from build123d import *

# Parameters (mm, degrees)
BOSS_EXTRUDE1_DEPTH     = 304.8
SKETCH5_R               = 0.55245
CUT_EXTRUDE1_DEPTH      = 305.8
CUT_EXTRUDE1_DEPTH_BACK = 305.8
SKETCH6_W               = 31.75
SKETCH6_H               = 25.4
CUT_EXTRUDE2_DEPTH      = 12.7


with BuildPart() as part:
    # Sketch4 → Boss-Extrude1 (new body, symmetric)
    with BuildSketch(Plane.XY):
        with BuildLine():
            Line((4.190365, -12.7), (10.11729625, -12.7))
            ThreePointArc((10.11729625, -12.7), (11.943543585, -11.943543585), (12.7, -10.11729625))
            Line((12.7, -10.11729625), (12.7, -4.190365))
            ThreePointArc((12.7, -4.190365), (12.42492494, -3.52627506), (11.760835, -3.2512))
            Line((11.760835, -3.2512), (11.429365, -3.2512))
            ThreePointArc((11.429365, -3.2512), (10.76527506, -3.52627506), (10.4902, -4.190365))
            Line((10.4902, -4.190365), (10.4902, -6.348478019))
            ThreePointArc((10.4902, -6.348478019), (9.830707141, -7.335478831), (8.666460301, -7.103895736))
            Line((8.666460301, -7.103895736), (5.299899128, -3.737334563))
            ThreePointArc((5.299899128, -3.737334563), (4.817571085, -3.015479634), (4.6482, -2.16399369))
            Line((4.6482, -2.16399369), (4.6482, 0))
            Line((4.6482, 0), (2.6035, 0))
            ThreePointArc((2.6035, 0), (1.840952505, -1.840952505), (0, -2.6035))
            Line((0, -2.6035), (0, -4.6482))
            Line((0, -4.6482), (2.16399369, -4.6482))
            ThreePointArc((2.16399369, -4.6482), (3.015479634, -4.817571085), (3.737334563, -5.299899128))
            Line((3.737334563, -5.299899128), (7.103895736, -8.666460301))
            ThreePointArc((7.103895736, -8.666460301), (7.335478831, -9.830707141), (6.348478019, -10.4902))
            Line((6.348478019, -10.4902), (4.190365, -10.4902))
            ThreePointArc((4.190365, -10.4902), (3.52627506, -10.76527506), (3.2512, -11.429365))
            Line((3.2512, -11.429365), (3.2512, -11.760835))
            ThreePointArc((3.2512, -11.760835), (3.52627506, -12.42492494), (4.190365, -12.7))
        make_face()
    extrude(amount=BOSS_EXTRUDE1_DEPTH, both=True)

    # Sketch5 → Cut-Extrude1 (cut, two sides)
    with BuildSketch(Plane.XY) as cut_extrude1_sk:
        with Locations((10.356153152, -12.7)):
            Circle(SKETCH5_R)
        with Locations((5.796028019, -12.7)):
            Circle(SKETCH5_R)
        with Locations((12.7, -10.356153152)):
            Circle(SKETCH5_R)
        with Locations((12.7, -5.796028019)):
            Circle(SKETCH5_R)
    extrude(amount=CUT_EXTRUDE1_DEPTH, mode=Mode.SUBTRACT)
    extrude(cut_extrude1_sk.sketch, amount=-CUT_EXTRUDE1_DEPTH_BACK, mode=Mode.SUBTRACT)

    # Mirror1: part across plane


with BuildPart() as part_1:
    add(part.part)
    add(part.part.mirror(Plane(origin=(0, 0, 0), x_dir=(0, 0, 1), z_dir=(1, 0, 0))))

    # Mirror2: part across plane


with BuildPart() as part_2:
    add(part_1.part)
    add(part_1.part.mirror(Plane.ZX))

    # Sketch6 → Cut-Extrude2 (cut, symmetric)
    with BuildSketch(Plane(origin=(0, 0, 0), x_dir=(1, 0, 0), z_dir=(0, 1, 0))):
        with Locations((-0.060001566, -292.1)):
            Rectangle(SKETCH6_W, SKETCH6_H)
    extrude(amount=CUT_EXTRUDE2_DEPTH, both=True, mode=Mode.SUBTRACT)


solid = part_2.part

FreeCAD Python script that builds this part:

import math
import FreeCAD as App
import Part
import Sketcher
Q = App.Units.Quantity


def add_polygon(sketch, points):
    """Adds a closed chain of lines whose ends are joined by coincident constraints."""
    first, n = sketch.GeometryCount, len(points)
    for a, b in zip(points, points[1:] + points[:1]):
        sketch.addGeometry(Part.LineSegment(App.Vector(*a, 0), App.Vector(*b, 0)), False)
    for i in range(n):
        sketch.addConstraint(Sketcher.Constraint("Coincident", first + i, 2, first + (i + 1) % n, 1))

doc = App.newDocument("Part")
body = doc.addObject("PartDesign::Body", "Body")

# Sketch on XY plane
sketch1 = body.newObject("Sketcher::SketchObject", "Sketch")
sketch1.AttachmentSupport = (doc.getObject("XY_Plane"), [""])
sketch1.MapMode = "FlatFace"
sketch1.addGeometry(Part.LineSegment(App.Vector(4.19, -12.7, 0), App.Vector(10.12, -12.7, 0)), False)
sketch1.addGeometry(Part.ArcOfCircle(Part.Circle(App.Vector(10.12, -10.12, 0), App.Vector(0, 0, 1), 2.58), math.radians(-90), math.radians(0)), False)
sketch1.addGeometry(Part.LineSegment(App.Vector(12.7, -10.12, 0), App.Vector(12.7, -4.19, 0)), False)
sketch1.addGeometry(Part.ArcOfCircle(Part.Circle(App.Vector(11.76, -4.19, 0), App.Vector(0, 0, 1), 0.94), math.radians(0), math.radians(90)), False)
sketch1.addGeometry(Part.LineSegment(App.Vector(11.76, -3.25, 0), App.Vector(11.43, -3.25, 0)), False)
sketch1.addGeometry(Part.ArcOfCircle(Part.Circle(App.Vector(11.43, -4.19, 0), App.Vector(0, 0, 1), 0.94), math.radians(90), math.radians(180)), False)
sketch1.addGeometry(Part.LineSegment(App.Vector(10.49, -4.19, 0), App.Vector(10.49, -6.35, 0)), False)
sketch1.addGeometry(Part.ArcOfCircle(Part.Circle(App.Vector(9.42, -6.35, 0), App.Vector(0, 0, 1), 1.07), math.radians(-135), math.radians(0)), False)
sketch1.addGeometry(Part.LineSegment(App.Vector(8.67, -7.1, 0), App.Vector(5.3, -3.74, 0)), False)
sketch1.addGeometry(Part.ArcOfCircle(Part.Circle(App.Vector(6.87, -2.16, 0), App.Vector(0, 0, 1), 2.23), math.radians(-180), math.radians(-135)), False)
sketch1.addGeometry(Part.LineSegment(App.Vector(4.65, -2.16, 0), App.Vector(4.65, 0, 0)), False)
sketch1.addGeometry(Part.LineSegment(App.Vector(4.65, 0, 0), App.Vector(2.6, 0, 0)), False)
sketch1.addGeometry(Part.ArcOfCircle(Part.Circle(App.Vector(0, 0, 0), App.Vector(0, 0, 1), 2.6), math.radians(-90), math.radians(0)), False)
sketch1.addGeometry(Part.LineSegment(App.Vector(0, -2.6, 0), App.Vector(0, -4.65, 0)), False)
sketch1.addGeometry(Part.LineSegment(App.Vector(0, -4.65, 0), App.Vector(2.16, -4.65, 0)), False)
sketch1.addGeometry(Part.ArcOfCircle(Part.Circle(App.Vector(2.16, -6.87, 0), App.Vector(0, 0, 1), 2.23), math.radians(45), math.radians(90)), False)
sketch1.addGeometry(Part.LineSegment(App.Vector(3.74, -5.3, 0), App.Vector(7.1, -8.67, 0)), False)
sketch1.addGeometry(Part.ArcOfCircle(Part.Circle(App.Vector(6.35, -9.42, 0), App.Vector(0, 0, 1), 1.07), math.radians(-90), math.radians(45)), False)
sketch1.addGeometry(Part.LineSegment(App.Vector(6.35, -10.49, 0), App.Vector(4.19, -10.49, 0)), False)
sketch1.addGeometry(Part.ArcOfCircle(Part.Circle(App.Vector(4.19, -11.43, 0), App.Vector(0, 0, 1), 0.94), math.radians(90), math.radians(180)), False)
sketch1.addGeometry(Part.LineSegment(App.Vector(3.25, -11.43, 0), App.Vector(3.25, -11.76, 0)), False)
sketch1.addGeometry(Part.ArcOfCircle(Part.Circle(App.Vector(4.19, -11.76, 0), App.Vector(0, 0, 1), 0.94), math.radians(-180), math.radians(-90)), False)
sketch1.addConstraint(Sketcher.Constraint("Tangent", 0, 2, 1, 1))
sketch1.addConstraint(Sketcher.Constraint("Tangent", 1, 2, 2, 1))
sketch1.addConstraint(Sketcher.Constraint("Tangent", 2, 2, 3, 1))
sketch1.addConstraint(Sketcher.Constraint("Tangent", 3, 2, 4, 1))
sketch1.addConstraint(Sketcher.Constraint("Tangent", 4, 2, 5, 1))
sketch1.addConstraint(Sketcher.Constraint("Tangent", 5, 2, 6, 1))
sketch1.addConstraint(Sketcher.Constraint("Tangent", 6, 2, 7, 2))
sketch1.addConstraint(Sketcher.Constraint("Tangent", 7, 1, 8, 1))
sketch1.addConstraint(Sketcher.Constraint("Tangent", 8, 2, 9, 2))
sketch1.addConstraint(Sketcher.Constraint("Tangent", 9, 1, 10, 1))
sketch1.addConstraint(Sketcher.Constraint("Coincident", 10, 2, 11, 1))
sketch1.addConstraint(Sketcher.Constraint("Coincident", 11, 2, 12, 2))
sketch1.addConstraint(Sketcher.Constraint("Coincident", 12, 1, 13, 1))
sketch1.addConstraint(Sketcher.Constraint("Coincident", 13, 2, 14, 1))
sketch1.addConstraint(Sketcher.Constraint("Tangent", 14, 2, 15, 2))
sketch1.addConstraint(Sketcher.Constraint("Tangent", 15, 1, 16, 1))
sketch1.addConstraint(Sketcher.Constraint("Tangent", 16, 2, 17, 2))
sketch1.addConstraint(Sketcher.Constraint("Tangent", 17, 1, 18, 1))
sketch1.addConstraint(Sketcher.Constraint("Tangent", 18, 2, 19, 1))
sketch1.addConstraint(Sketcher.Constraint("Tangent", 19, 2, 20, 1))
sketch1.addConstraint(Sketcher.Constraint("Tangent", 20, 2, 21, 1))
sketch1.addConstraint(Sketcher.Constraint("Tangent", 21, 2, 0, 1))
sketch1.addConstraint(Sketcher.Constraint("Horizontal", 0))
sketch1.addConstraint(Sketcher.Constraint("Vertical", 2))
sketch1.addConstraint(Sketcher.Constraint("Horizontal", 4))
sketch1.addConstraint(Sketcher.Constraint("Vertical", 6))
sketch1.addConstraint(Sketcher.Constraint("Vertical", 10))
sketch1.addConstraint(Sketcher.Constraint("Horizontal", 11))
sketch1.addConstraint(Sketcher.Constraint("Vertical", 13))
sketch1.addConstraint(Sketcher.Constraint("Horizontal", 14))
sketch1.addConstraint(Sketcher.Constraint("Horizontal", 18))
sketch1.addConstraint(Sketcher.Constraint("Vertical", 20))
sketch1.addConstraint(Sketcher.Constraint("Coincident", 12, 3, -1, 1))
sketch1.addConstraint(Sketcher.Constraint("Equal", 3, 5))
sketch1.addConstraint(Sketcher.Constraint("Equal", 9, 15))
sketch1.addConstraint(Sketcher.Constraint("Equal", 7, 17))
sketch1.addConstraint(Sketcher.Constraint("Equal", 5, 19))
sketch1.addConstraint(Sketcher.Constraint("Equal", 19, 21))
sketch1.addConstraint(Sketcher.Constraint("PointOnObject", 10, 2, -1))
sketch1.addConstraint(Sketcher.Constraint("PointOnObject", 12, 1, -2))
sketch1.addConstraint(Sketcher.Constraint("Parallel", 8, 16))
sketch1.addConstraint(Sketcher.Constraint("Equal", 0, 2))
sketch1.addConstraint(Sketcher.Constraint("Equal", 18, 6))
sketch1.addConstraint(Sketcher.Constraint("Equal", 14, 10))
sketch1.addConstraint(Sketcher.Constraint("Equal", 11, 13))
sketch1.addConstraint(Sketcher.Constraint("Equal", 4, 20))
sketch1.addConstraint(Sketcher.Constraint("Equal", 8, 16))
sketch1.addConstraint(Sketcher.Constraint("DistanceY", 0, 2, -1, 1, Q("0.5 in")))
sketch1.addConstraint(Sketcher.Constraint("Radius", 9, Q("0.0876 in")))
sketch1.addConstraint(Sketcher.Constraint("Radius", 12, Q("0.1025 in")))
sketch1.addConstraint(Sketcher.Constraint("DistanceX", 9, 1, 5, 2, Q("0.23 in")))
sketch1.addConstraint(Sketcher.Constraint("DistanceX", 11, 2, 11, 1, Q("0.0805 in")))
sketch1.addConstraint(Sketcher.Constraint("DistanceY", 3, 2, -1, 1, Q("0.128 in")))
sketch1.addConstraint(Sketcher.Constraint("Radius", 7, Q("1.068322 mm")))
sketch1.addConstraint(Sketcher.Constraint("DistanceX", 17, 3, 7, 3, Q("0.121 in")))
sketch1.addConstraint(Sketcher.Constraint("Radius", 1, Q("2.582704 mm")))
sketch1.addConstraint(Sketcher.Constraint("Radius", 3, Q("0.939165 mm")))
pad1 = body.newObject("PartDesign::Pad", "Pad")
pad1.Profile = sketch1
pad1.Length = Q("24 in")
pad1.Midplane = True

# Sketch on XY plane
sketch2 = body.newObject("Sketcher::SketchObject", "Sketch001")
sketch2.AttachmentSupport = (doc.getObject("XY_Plane"), [""])
sketch2.MapMode = "FlatFace"
sketch2.addGeometry(Part.Circle(App.Vector(10.4, -12.7, 0), App.Vector(0, 0, 1), 0.6), False)
sketch2.addGeometry(Part.Circle(App.Vector(5.8, -12.7, 0), App.Vector(0, 0, 1), 0.6), False)
sketch2.addGeometry(Part.Circle(App.Vector(12.7, -10.4, 0), App.Vector(0, 0, 1), 0.6), False)
sketch2.addGeometry(Part.Circle(App.Vector(12.7, -5.8, 0), App.Vector(0, 0, 1), 0.6), False)
sketch2.addConstraint(Sketcher.Constraint("Equal", 0, 1))
sketch2.addConstraint(Sketcher.Constraint("Equal", 1, 2))
sketch2.addConstraint(Sketcher.Constraint("Equal", 2, 3))
sketch2.addConstraint(Sketcher.Constraint("Horizontal", 0, 3, 1, 3))
sketch2.addConstraint(Sketcher.Constraint("Vertical", 2, 3, 3, 3))
sketch2.addConstraint(Sketcher.Constraint("Diameter", 0, Q("0.0435 in")))
sketch2.addConstraint(Sketcher.Constraint("DistanceY", 0, 3, -1, 1, Q("0.5 in")))
sketch2.addConstraint(Sketcher.Constraint("DistanceX", -1, 1, 2, 3, Q("0.5 in")))
sketch2.addConstraint(Sketcher.Constraint("DistanceX", -1, 1, 1, 3, Q("5.796028 mm")))
sketch2.addConstraint(Sketcher.Constraint("DistanceY", 3, 3, -1, 1, Q("5.796028 mm")))
sketch2.addConstraint(Sketcher.Constraint("DistanceX", -1, 1, 0, 3, Q("10.356153 mm")))
sketch2.addConstraint(Sketcher.Constraint("DistanceY", 2, 3, -1, 1, Q("10.356153 mm")))
pocket1 = body.newObject("PartDesign::Pocket", "Pocket")
pocket1.Profile = sketch2
pocket1.Type = "ThroughAll"
pocket1.Midplane = True
body2 = doc.addObject("PartDesign::Body", "Body001")
doc.recompute()

body2.BaseFeature = body
doc.recompute()

mirroring = doc.addObject("Part::Mirroring", "Mirroring")
mirroring.Source = body
mirroring.Base = App.Vector(0, 0, 0)
mirroring.Normal = App.Vector(1, 0, 0)
body3 = doc.addObject("PartDesign::Body", "Body002")
body3.BaseFeature = mirroring
boolean = body2.newObject("PartDesign::Boolean", "Boolean")
boolean.Type = "Fuse"
boolean.addObjects([body3])
doc.recompute()
body4 = doc.addObject("PartDesign::Body", "Body003")
doc.recompute()

body4.BaseFeature = body2
doc.recompute()

mirroring2 = doc.addObject("Part::Mirroring", "Mirroring001")
mirroring2.Source = body2
mirroring2.Base = App.Vector(0, 0, 0)
mirroring2.Normal = App.Vector(0, 1, 0)
body5 = doc.addObject("PartDesign::Body", "Body004")
body5.BaseFeature = mirroring2
boolean2 = body4.newObject("PartDesign::Boolean", "Boolean001")
boolean2.Type = "Fuse"
boolean2.addObjects([body5])
doc.recompute()

# Sketch on XZ plane
sketch3 = body4.newObject("Sketcher::SketchObject", "Sketch002")
sketch3.AttachmentSupport = (doc.getObject("XZ_Plane003"), [""])
sketch3.MapMode = "FlatFace"
add_polygon(sketch3, [(-16, 279), (-16, 305), (16, 305), (16, 279)])  # lines 0-3
sketch3.addConstraint(Sketcher.Constraint("Vertical", 0))
sketch3.addConstraint(Sketcher.Constraint("Horizontal", 1))
sketch3.addConstraint(Sketcher.Constraint("Vertical", 2))
sketch3.addConstraint(Sketcher.Constraint("Horizontal", 3))
sketch3.addConstraint(Sketcher.Constraint("DistanceY", 0, 1, 0, 2, Q("1 in")))
sketch3.addConstraint(Sketcher.Constraint("DistanceY", -1, 1, 0, 2, Q("12 in")))
sketch3.addConstraint(Sketcher.Constraint("DistanceX", 1, 1, 1, 2, Q("1.25 in")))
sketch3.addConstraint(Sketcher.Constraint("DistanceX", 0, 2, -1, 1, Q("15.935002 mm")))
pocket2 = body4.newObject("PartDesign::Pocket", "Pocket001")
pocket2.Profile = sketch3
pocket2.Length = Q("1 in")
pocket2.Midplane = True
mirroring.Visibility = False
mirroring2.Visibility = False

doc.recompute()
